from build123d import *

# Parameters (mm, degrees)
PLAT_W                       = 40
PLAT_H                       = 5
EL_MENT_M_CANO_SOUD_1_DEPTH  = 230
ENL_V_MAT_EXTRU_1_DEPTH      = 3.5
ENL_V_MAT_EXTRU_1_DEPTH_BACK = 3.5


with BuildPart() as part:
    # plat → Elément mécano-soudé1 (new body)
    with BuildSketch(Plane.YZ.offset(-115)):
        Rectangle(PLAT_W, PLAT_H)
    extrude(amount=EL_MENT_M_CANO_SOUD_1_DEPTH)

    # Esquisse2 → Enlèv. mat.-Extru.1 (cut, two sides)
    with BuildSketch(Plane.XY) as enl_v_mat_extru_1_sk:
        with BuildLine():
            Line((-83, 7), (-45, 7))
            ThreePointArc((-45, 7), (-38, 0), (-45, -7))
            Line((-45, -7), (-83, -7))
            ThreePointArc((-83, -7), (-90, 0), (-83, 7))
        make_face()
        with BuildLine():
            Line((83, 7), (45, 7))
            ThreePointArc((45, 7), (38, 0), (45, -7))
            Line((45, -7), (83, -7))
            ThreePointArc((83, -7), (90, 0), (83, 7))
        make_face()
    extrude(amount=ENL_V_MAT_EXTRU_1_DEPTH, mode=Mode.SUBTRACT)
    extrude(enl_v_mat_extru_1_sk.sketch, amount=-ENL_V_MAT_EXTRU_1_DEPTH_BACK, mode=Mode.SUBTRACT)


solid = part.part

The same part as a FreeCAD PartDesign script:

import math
import FreeCAD as App
import Part
import Sketcher

V = App.Vector


def add_polygon(sketch, points):
    """Adds a closed chain of lines whose ends are joined by coincident constraints."""
    first, n = sketch.GeometryCount, len(points)
    for a, b in zip(points, points[1:] + points[:1]):
        sketch.addGeometry(Part.LineSegment(App.Vector(*a, 0), App.Vector(*b, 0)), False)
    for i in range(n):
        sketch.addConstraint(Sketcher.Constraint("Coincident", first + i, 2, first + (i + 1) % n, 1))

doc = App.newDocument("Part")
body = doc.addObject("PartDesign::Body", "Body")

sketch1 = body.newObject("Sketcher::SketchObject", "Sketch")
sketch1.AttachmentSupport = (doc.getObject("YZ_Plane"), [""])
sketch1.MapMode = "FlatFace"
sketch1.AttachmentOffset = App.Placement(V(0, 0, -115), App.Rotation())
add_polygon(sketch1, [(-20, 2), (-20, -2), (20, -2), (20, 2)])
sketch1.addConstraint([
    Sketcher.Constraint("Vertical", 0),
    Sketcher.Constraint("Horizontal", 1),
    Sketcher.Constraint("Vertical", 2),
    Sketcher.Constraint("Horizontal", 3),
    Sketcher.Constraint("Symmetric", 0, 2, 2, 2, -1, 1),
    Sketcher.Constraint("DistanceX", 1, 1, 1, 2, 40.0),
    Sketcher.Constraint("DistanceY", 0, 2, 0, 1, 5.0),
])
pad1 = body.newObject("PartDesign::Pad", "Pad")
pad1.Profile = sketch1
pad1.Length = 230

sketch2 = body.newObject("Sketcher::SketchObject", "Sketch001")
sketch2.AttachmentSupport = (doc.getObject("XY_Plane"), [""])
sketch2.MapMode = "FlatFace"
sketch2.addGeometry([
    Part.LineSegment(V(-45, 7, 0), V(-83, 7, 0)),
    Part.ArcOfCircle(Part.Circle(V(-83, 0, 0), V(0, 0, 1), 7), math.radians(90), math.radians(270)),
    Part.LineSegment(V(-83, -7, 0), V(-45, -7, 0)),
    Part.ArcOfCircle(Part.Circle(V(-45, 0, 0), V(0, 0, 1), 7), math.radians(-90), math.radians(90)),
    Part.LineSegment(V(83, 7, 0), V(45, 7, 0)),
    Part.ArcOfCircle(Part.Circle(V(45, 0, 0), V(0, 0, 1), 7), math.radians(90), math.radians(270)),
    Part.LineSegment(V(45, -7, 0), V(83, -7, 0)),
    Part.ArcOfCircle(Part.Circle(V(83, 0, 0), V(0, 0, 1), 7), math.radians(-90), math.radians(90)),
], False)
sketch2.addConstraint([
    Sketcher.Constraint("Tangent", 0, 2, 1, 1),
    Sketcher.Constraint("Tangent", 1, 2, 2, 1),
    Sketcher.Constraint("Tangent", 2, 2, 3, 1),
    Sketcher.Constraint("Tangent", 3, 2, 0, 1),
    Sketcher.Constraint("Tangent", 4, 2, 5, 1),
    Sketcher.Constraint("Tangent", 5, 2, 6, 1),
    Sketcher.Constraint("Tangent", 6, 2, 7, 1),
    Sketcher.Constraint("Tangent", 7, 2, 4, 1),
    Sketcher.Constraint("Horizontal", 0),
    Sketcher.Constraint("Horizontal", 2),
    Sketcher.Constraint("Horizontal", 4),
    Sketcher.Constraint("Horizontal", 6),
    Sketcher.Constraint("Equal", 3, 5),
    Sketcher.Constraint("Symmetric", 3, 3, 5, 3, -1, 1),
    Sketcher.Constraint("Symmetric", 1, 3, 7, 3, -2),
    Sketcher.Constraint("Radius", 1, 7.0),
    Sketcher.Constraint("DistanceX", 0, 2, 0, 1, 38.0),
    Sketcher.Constraint("DistanceX", 1, 3, -1, 1, 83.0),
])
pocket1 = body.newObject("PartDesign::Pocket", "Pocket")
pocket1.Profile = sketch2
pocket1.Type = "ThroughAll"
pocket1.Midplane = True

doc.recompute()
